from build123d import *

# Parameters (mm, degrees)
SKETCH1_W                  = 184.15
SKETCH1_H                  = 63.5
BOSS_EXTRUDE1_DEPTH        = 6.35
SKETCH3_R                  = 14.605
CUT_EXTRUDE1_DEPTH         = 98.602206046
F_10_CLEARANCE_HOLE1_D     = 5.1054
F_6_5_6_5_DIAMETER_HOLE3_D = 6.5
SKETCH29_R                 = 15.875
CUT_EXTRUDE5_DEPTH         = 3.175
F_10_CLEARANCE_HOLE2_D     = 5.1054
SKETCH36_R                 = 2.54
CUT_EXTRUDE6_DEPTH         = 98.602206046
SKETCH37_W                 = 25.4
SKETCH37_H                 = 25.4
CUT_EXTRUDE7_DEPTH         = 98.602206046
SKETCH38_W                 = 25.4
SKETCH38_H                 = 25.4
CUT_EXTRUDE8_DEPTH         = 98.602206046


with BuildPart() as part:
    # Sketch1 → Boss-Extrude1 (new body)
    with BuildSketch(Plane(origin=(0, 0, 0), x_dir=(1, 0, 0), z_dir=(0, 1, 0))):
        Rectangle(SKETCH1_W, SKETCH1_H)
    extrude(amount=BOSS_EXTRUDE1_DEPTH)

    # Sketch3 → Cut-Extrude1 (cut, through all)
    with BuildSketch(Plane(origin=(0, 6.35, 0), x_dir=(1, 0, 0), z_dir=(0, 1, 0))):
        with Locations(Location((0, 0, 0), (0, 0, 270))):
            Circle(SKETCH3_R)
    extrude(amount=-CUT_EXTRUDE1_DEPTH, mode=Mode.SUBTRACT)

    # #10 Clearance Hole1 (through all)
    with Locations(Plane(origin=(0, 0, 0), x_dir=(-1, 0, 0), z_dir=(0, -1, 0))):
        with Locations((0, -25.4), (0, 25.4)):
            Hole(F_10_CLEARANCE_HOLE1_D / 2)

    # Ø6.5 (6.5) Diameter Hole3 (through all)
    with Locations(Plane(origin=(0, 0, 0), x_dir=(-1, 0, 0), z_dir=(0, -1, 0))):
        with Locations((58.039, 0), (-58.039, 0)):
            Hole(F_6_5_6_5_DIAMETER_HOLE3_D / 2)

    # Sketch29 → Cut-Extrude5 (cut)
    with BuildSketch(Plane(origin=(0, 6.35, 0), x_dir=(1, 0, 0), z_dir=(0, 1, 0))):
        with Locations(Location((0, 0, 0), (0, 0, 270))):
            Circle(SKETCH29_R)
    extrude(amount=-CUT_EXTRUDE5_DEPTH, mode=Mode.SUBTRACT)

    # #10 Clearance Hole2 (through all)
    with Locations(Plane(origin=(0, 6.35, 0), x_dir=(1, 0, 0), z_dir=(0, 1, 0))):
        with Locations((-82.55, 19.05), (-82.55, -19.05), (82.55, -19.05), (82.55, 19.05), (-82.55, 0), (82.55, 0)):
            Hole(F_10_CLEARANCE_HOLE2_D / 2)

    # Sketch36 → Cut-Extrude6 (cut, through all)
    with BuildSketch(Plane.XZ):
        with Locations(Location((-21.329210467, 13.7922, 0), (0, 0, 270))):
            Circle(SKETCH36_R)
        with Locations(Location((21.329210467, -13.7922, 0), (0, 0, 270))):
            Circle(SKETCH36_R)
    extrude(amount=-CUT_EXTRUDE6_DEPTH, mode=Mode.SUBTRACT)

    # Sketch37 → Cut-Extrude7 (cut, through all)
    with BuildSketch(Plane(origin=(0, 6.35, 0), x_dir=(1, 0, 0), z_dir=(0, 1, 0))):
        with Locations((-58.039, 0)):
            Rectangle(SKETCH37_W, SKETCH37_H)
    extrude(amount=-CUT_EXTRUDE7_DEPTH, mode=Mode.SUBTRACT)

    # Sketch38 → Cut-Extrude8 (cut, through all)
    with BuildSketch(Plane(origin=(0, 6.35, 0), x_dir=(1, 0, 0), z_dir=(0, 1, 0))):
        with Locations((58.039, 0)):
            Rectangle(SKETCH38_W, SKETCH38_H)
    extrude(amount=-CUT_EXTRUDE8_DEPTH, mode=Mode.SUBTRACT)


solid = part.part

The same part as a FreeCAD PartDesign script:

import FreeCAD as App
import Part
import Sketcher
from FreeCAD import Vector
Q = App.Units.Quantity

doc = App.newDocument("Part")
body = doc.addObject("PartDesign::Body", "Body")

# Sketch on XZ plane
sketch1 = body.newObject("Sketcher::SketchObject", "Sketch")
sketch1.AttachmentSupport = (doc.getObject("XZ_Plane"), [""])
sketch1.MapMode = "FlatFace"
sketch1.addGeometry([
    Part.LineSegment(Vector(-92, -32, 0), Vector(-92, 32, 0)),
    Part.LineSegment(Vector(-92, 32, 0), Vector(92, 32, 0)),
    Part.LineSegment(Vector(92, 32, 0), Vector(92, -32, 0)),
    Part.LineSegment(Vector(92, -32, 0), Vector(-92, -32, 0)),
], False)
sketch1.addConstraint([
    Sketcher.Constraint("Coincident", 0, 2, 1, 1),
    Sketcher.Constraint("Coincident", 1, 2, 2, 1),
    Sketcher.Constraint("Coincident", 2, 2, 3, 1),
    Sketcher.Constraint("Coincident", 3, 2, 0, 1),
    Sketcher.Constraint("Vertical", 0),
    Sketcher.Constraint("Horizontal", 1),
    Sketcher.Constraint("Vertical", 2),
    Sketcher.Constraint("Horizontal", 3),
    Sketcher.Constraint("Symmetric", 0, 2, 2, 2, -1, 1),
    Sketcher.Constraint("DistanceY", 0, 1, 0, 2, Q("2.5 in")),
    Sketcher.Constraint("DistanceX", 1, 1, 1, 2, Q("7.25 in")),
])
pad1 = body.newObject("PartDesign::Pad", "Pad")
pad1.Profile = sketch1
pad1.Length = Q("0.25 in")
pad1.Reversed = True

# Sketch on XZ plane
sketch2 = body.newObject("Sketcher::SketchObject", "Sketch001")
sketch2.AttachmentSupport = (doc.getObject("XZ_Plane"), [""])
sketch2.MapMode = "FlatFace"
sketch2.AttachmentOffset = App.Placement(Vector(0, 0, -0.25 * 25.4), App.Rotation())
sketch2.addGeometry(Part.Circle(Vector(0, 0, 0), Vector(0, 0, 1), 15), False)
sketch2.addConstraint([
    Sketcher.Constraint("Coincident", 0, 3, -1, 1),
    Sketcher.Constraint("Diameter", 0, Q("1.15 in")),
])
pocket1 = body.newObject("PartDesign::Pocket", "Pocket")
pocket1.Profile = sketch2
pocket1.Type = "ThroughAll"
pocket1.Reversed = True

# Sketch on XZ plane
sketch3 = body.newObject("Sketcher::SketchObject", "Sketch002")
sketch3.AttachmentSupport = (doc.getObject("XZ_Plane"), [""])
sketch3.MapMode = "FlatFace"
sketch3.addGeometry([
    Part.Circle(Vector(0, 25.4, 0), Vector(0, 0, 1), 2.6),
    Part.Circle(Vector(0, -25.4, 0), Vector(0, 0, 1), 2.6),
], False)
sketch3.addConstraint([
    Sketcher.Constraint("Equal", 0, 1),
    Sketcher.Constraint("Symmetric", 0, 3, 1, 3, -1, 1),
    Sketcher.Constraint("PointOnObject", 0, 3, -2),
    Sketcher.Constraint("Diameter", 0, Q("0.201 in")),
    Sketcher.Constraint("DistanceY", -1, 1, 0, 3, Q("1 in")),
])
doc.recompute()
hole = body.newObject("PartDesign::Hole", "Hole")
hole.Profile = sketch3
hole.ThreadType = "None"
hole.Diameter = Q("0.201 in")
hole.DepthType = "ThroughAll"

# Sketch on XZ plane
sketch4 = body.newObject("Sketcher::SketchObject", "Sketch003")
sketch4.AttachmentSupport = (doc.getObject("XZ_Plane"), [""])
sketch4.MapMode = "FlatFace"
sketch4.addGeometry([
    Part.Circle(Vector(-58, 0, 0), Vector(0, 0, 1), 3.2),
    Part.Circle(Vector(58, 0, 0), Vector(0, 0, 1), 3.2),
], False)
sketch4.addConstraint([
    Sketcher.Constraint("Equal", 0, 1),
    Sketcher.Constraint("Symmetric", 0, 3, 1, 3, -1, 1),
    Sketcher.Constraint("PointOnObject", 0, 3, -1),
    Sketcher.Constraint("Diameter", 0, Q("6.5 mm")),
    Sketcher.Constraint("DistanceX", 0, 3, 1, 3, Q("4.57 in")),
])
doc.recompute()
hole2 = body.newObject("PartDesign::Hole", "Hole001")
hole2.Profile = sketch4
hole2.ThreadType = "None"
hole2.Diameter = 6.5
hole2.DepthType = "ThroughAll"

# Sketch on XZ plane
sketch5 = body.newObject("Sketcher::SketchObject", "Sketch004")
sketch5.AttachmentSupport = (doc.getObject("XZ_Plane"), [""])
sketch5.MapMode = "FlatFace"
sketch5.AttachmentOffset = App.Placement(Vector(0, 0, -0.25 * 25.4), App.Rotation())
sketch5.addGeometry(Part.Circle(Vector(0, 0, 0), Vector(0, 0, 1), 16), False)
sketch5.addConstraint([
    Sketcher.Constraint("Coincident", 0, 3, -1, 1),
    Sketcher.Constraint("Diameter", 0, Q("1.25 in")),
])
pocket2 = body.newObject("PartDesign::Pocket", "Pocket001")
pocket2.Profile = sketch5
pocket2.Length = Q("0.125 in")
pocket2.Reversed = True

# Sketch on XZ plane
sketch6 = body.newObject("Sketcher::SketchObject", "Sketch005")
sketch6.AttachmentSupport = (doc.getObject("XZ_Plane"), [""])
sketch6.MapMode = "FlatFace"
sketch6.AttachmentOffset = App.Placement(Vector(0, 0, -0.25 * 25.4), App.Rotation())
sketch6.addGeometry([
    Part.Circle(Vector(-82.5, -19.1, 0), Vector(0, 0, 1), 2.6),  # 0
    Part.Circle(Vector(-82.5, 19.1, 0), Vector(0, 0, 1), 2.6),  # 1
    Part.Circle(Vector(82.5, 19.1, 0), Vector(0, 0, 1), 2.6),  # 2
    Part.Circle(Vector(82.5, -19.1, 0), Vector(0, 0, 1), 2.6),  # 3
    Part.Circle(Vector(-82.5, 0, 0), Vector(0, 0, 1), 2.6),  # 4
    Part.Circle(Vector(82.5, 0, 0), Vector(0, 0, 1), 2.6),  # 5
], False)
sketch6.addConstraint([
    Sketcher.Constraint("Equal", 0, 1),
    Sketcher.Constraint("Equal", 1, 2),
    Sketcher.Constraint("Equal", 2, 3),
    Sketcher.Constraint("Equal", 3, 4),
    Sketcher.Constraint("Equal", 4, 5),
    Sketcher.Constraint("Symmetric", 0, 3, 2, 3, -1, 1),
    Sketcher.Constraint("Symmetric", 1, 3, 3, 3, -1, 1),
    Sketcher.Constraint("Symmetric", 4, 3, 5, 3, -1, 1),
    Sketcher.Constraint("Symmetric", 1, 3, 2, 3, -2),
    Sketcher.Constraint("PointOnObject", 4, 3, -1),
    Sketcher.Constraint("Vertical", 1, 3, 4, 3),
    Sketcher.Constraint("Diameter", 0, Q("0.201 in")),
    Sketcher.Constraint("DistanceY", 0, 3, 1, 3, Q("1.5 in")),
    Sketcher.Constraint("DistanceX", 1, 3, 2, 3, Q("6.5 in")),
])
doc.recompute()
hole3 = body.newObject("PartDesign::Hole", "Hole002")
hole3.Profile = sketch6
hole3.ThreadType = "None"
hole3.Diameter = Q("0.201 in")
hole3.DepthType = "ThroughAll"
hole3.Reversed = True

# Sketch on XZ plane
sketch7 = body.newObject("Sketcher::SketchObject", "Sketch006")
sketch7.AttachmentSupport = (doc.getObject("XZ_Plane"), [""])
sketch7.MapMode = "FlatFace"
sketch7.addGeometry([
    Part.Circle(Vector(-21.3, 13.8, 0), Vector(0, 0, 1), 2.5),
    Part.Circle(Vector(21.3, -13.8, 0), Vector(0, 0, 1), 2.5),
], False)
sketch7.addConstraint([
    Sketcher.Constraint("Equal", 0, 1),
    Sketcher.Constraint("Symmetric", 0, 3, 1, 3, -1, 1),
    Sketcher.Constraint("Diameter", 0, Q("0.2 in")),
    Sketcher.Constraint("DistanceY", -1, 1, 0, 3, Q("0.543 in")),
    Sketcher.Constraint("DistanceX", 0, 3, -1, 1, Q("21.32921 mm")),
])
pocket3 = body.newObject("PartDesign::Pocket", "Pocket002")
pocket3.Profile = sketch7
pocket3.Type = "ThroughAll"

# Sketch on XZ plane
sketch8 = body.newObject("Sketcher::SketchObject", "Sketch007")
sketch8.AttachmentSupport = (doc.getObject("XZ_Plane"), [""])
sketch8.MapMode = "FlatFace"
sketch8.AttachmentOffset = App.Placement(Vector(0, 0, -0.25 * 25.4), App.Rotation())
sketch8.addGeometry([
    Part.LineSegment(Vector(-71, -13, 0), Vector(-71, 13, 0)),
    Part.LineSegment(Vector(-71, 13, 0), Vector(-45, 13, 0)),
    Part.LineSegment(Vector(-45, 13, 0), Vector(-45, -13, 0)),
    Part.LineSegment(Vector(-45, -13, 0), Vector(-71, -13, 0)),
], False)
sketch8.addConstraint([
    Sketcher.Constraint("Coincident", 0, 2, 1, 1),
    Sketcher.Constraint("Coincident", 1, 2, 2, 1),
    Sketcher.Constraint("Coincident", 2, 2, 3, 1),
    Sketcher.Constraint("Coincident", 3, 2, 0, 1),
    Sketcher.Constraint("Vertical", 0),
    Sketcher.Constraint("Horizontal", 1),
    Sketcher.Constraint("Vertical", 2),
    Sketcher.Constraint("Horizontal", 3),
    Sketcher.Constraint("Equal", 3, 0),
    Sketcher.Constraint("DistanceX", 1, 1, 1, 2, Q("1 in")),
    Sketcher.Constraint("DistanceY", -1, 1, 0, 2, Q("0.5 in")),
    Sketcher.Constraint("DistanceX", 0, 2, -1, 1, Q("2.785 in")),
])
pocket4 = body.newObject("PartDesign::Pocket", "Pocket003")
pocket4.Profile = sketch8
pocket4.Type = "ThroughAll"
pocket4.Reversed = True

# Sketch on XZ plane
sketch9 = body.newObject("Sketcher::SketchObject", "Sketch008")
sketch9.AttachmentSupport = (doc.getObject("XZ_Plane"), [""])
sketch9.MapMode = "FlatFace"
sketch9.AttachmentOffset = App.Placement(Vector(0, 0, -0.25 * 25.4), App.Rotation())
sketch9.addGeometry([
    Part.LineSegment(Vector(45, -13, 0), Vector(45, 13, 0)),
    Part.LineSegment(Vector(45, 13, 0), Vector(71, 13, 0)),
    Part.LineSegment(Vector(71, 13, 0), Vector(71, -13, 0)),
    Part.LineSegment(Vector(71, -13, 0), Vector(45, -13, 0)),
], False)
sketch9.addConstraint([
    Sketcher.Constraint("Coincident", 0, 2, 1, 1),
    Sketcher.Constraint("Coincident", 1, 2, 2, 1),
    Sketcher.Constraint("Coincident", 2, 2, 3, 1),
    Sketcher.Constraint("Coincident", 3, 2, 0, 1),
    Sketcher.Constraint("Vertical", 0),
    Sketcher.Constraint("Horizontal", 1),
    Sketcher.Constraint("Vertical", 2),
    Sketcher.Constraint("Horizontal", 3),
    Sketcher.Constraint("Equal", 3, 0),
    Sketcher.Constraint("DistanceX", 1, 1, 1, 2, Q("1 in")),
    Sketcher.Constraint("DistanceY", -1, 1, 0, 2, Q("0.5 in")),
    Sketcher.Constraint("DistanceX", -1, 1, 0, 2, Q("1.785 in")),
])
pocket5 = body.newObject("PartDesign::Pocket", "Pocket004")
pocket5.Profile = sketch9
pocket5.Type = "ThroughAll"
pocket5.Reversed = True

doc.recompute()
